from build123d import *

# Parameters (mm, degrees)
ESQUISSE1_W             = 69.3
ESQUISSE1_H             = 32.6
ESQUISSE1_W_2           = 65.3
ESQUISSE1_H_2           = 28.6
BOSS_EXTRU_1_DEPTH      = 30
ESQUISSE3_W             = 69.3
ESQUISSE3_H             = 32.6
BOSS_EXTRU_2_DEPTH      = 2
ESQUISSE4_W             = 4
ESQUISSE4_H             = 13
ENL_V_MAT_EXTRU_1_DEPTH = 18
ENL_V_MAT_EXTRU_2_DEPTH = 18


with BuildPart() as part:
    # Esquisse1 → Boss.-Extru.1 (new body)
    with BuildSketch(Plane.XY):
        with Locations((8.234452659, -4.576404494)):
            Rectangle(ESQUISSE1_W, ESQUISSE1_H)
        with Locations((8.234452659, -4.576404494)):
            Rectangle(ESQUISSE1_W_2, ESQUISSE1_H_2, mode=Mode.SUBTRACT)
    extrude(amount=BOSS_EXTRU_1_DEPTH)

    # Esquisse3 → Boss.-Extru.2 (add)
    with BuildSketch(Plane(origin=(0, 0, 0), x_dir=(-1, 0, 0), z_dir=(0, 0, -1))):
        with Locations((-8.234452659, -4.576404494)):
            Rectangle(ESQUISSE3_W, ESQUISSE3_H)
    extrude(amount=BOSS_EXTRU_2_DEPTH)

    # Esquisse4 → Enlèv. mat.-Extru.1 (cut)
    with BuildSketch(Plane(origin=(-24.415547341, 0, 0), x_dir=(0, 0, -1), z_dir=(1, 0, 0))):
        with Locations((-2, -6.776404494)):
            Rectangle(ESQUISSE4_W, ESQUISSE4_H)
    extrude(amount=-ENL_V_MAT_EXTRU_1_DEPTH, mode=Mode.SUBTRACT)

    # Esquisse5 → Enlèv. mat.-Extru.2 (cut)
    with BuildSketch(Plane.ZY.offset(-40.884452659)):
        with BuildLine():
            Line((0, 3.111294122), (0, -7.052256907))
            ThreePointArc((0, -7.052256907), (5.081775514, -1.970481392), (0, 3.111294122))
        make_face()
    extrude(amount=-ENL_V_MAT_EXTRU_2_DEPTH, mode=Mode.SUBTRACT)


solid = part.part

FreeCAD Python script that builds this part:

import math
import FreeCAD as App
import Part
import Sketcher

V = App.Vector

doc = App.newDocument("Part")
params = doc.addObject("Spreadsheet::Sheet", "Params")
for row, (alias, value) in enumerate([
    ("sketch1_width", "69.3 mm"),
    ("sketch1_width2", "65.3 mm"),
    ("sketch1_height", "32.6 mm"),
    ("sketch1_height2", "28.6 mm"),
    ("pad1_length", "30 mm"),
    ("sketch2_width", "69.3 mm"),
    ("sketch2_height", "32.6 mm"),
    ("pad2_length", "2 mm"),
    ("sketch3_width", "13 mm"),
    ("sketch3_height", "4 mm"),
    ("pocket1_length", "18 mm"),
    ("pocket2_length", "18 mm"),
], start=1):
    params.set(f"A{row}", alias)
    params.set(f"B{row}", "=" + value)
    params.setAlias(f"B{row}", alias)

body = doc.addObject("PartDesign::Body", "Body")

sketch1 = body.newObject("Sketcher::SketchObject", "Sketch")
sketch1.AttachmentSupport = (doc.getObject("XY_Plane"), [""])
sketch1.MapMode = "FlatFace"
sketch1.addGeometry([
    Part.LineSegment(V(-26.415547, 11.723596, 0), V(-26.415547, -20.876404, 0)),
    Part.LineSegment(V(-26.415547, -20.876404, 0), V(42.884453, -20.876404, 0)),
    Part.LineSegment(V(42.884453, -20.876404, 0), V(42.884453, 11.723596, 0)),
    Part.LineSegment(V(42.884453, 11.723596, 0), V(-26.415547, 11.723596, 0)),
    Part.LineSegment(V(40.884453, -18.876404, 0), V(-24.415547, -18.876404, 0)),
    Part.LineSegment(V(-24.415547, -18.876404, 0), V(-24.415547, 9.723596, 0)),
    Part.LineSegment(V(-24.415547, 9.723596, 0), V(40.884453, 9.723596, 0)),
    Part.LineSegment(V(40.884453, 9.723596, 0), V(40.884453, -18.876404, 0)),
], False)
sketch1.addConstraint([
    Sketcher.Constraint("Coincident", 0, 2, 1, 1),
    Sketcher.Constraint("Coincident", 1, 2, 2, 1),
    Sketcher.Constraint("Coincident", 2, 2, 3, 1),
    Sketcher.Constraint("Coincident", 3, 2, 0, 1),
    Sketcher.Constraint("Coincident", 4, 2, 5, 1),
    Sketcher.Constraint("Coincident", 5, 2, 6, 1),
    Sketcher.Constraint("Coincident", 6, 2, 7, 1),
    Sketcher.Constraint("Coincident", 7, 2, 4, 1),
    Sketcher.Constraint("Vertical", 0),
    Sketcher.Constraint("Horizontal", 1),
    Sketcher.Constraint("Vertical", 2),
    Sketcher.Constraint("Horizontal", 3),
    Sketcher.Constraint("Horizontal", 4),
    Sketcher.Constraint("Vertical", 5),
    Sketcher.Constraint("Horizontal", 6),
    Sketcher.Constraint("Vertical", 7),
    Sketcher.Constraint("DistanceX", 1, 1, 1, 2, 69.3),
    Sketcher.Constraint("DistanceX", 4, 2, 4, 1, 65.3),
    Sketcher.Constraint("DistanceY", 0, 2, 0, 1, 32.6),
    Sketcher.Constraint("DistanceY", 5, 1, 5, 2, 28.6),
    Sketcher.Constraint("DistanceX", 0, 2, 4, 2, 2.0),
    Sketcher.Constraint("DistanceY", 0, 2, 4, 2, 2.0),
    Sketcher.Constraint("DistanceX", 0, 2, -1, 1, 26.415547),
    Sketcher.Constraint("DistanceY", 0, 2, -1, 1, 20.876404),
])
sketch1.setExpression("Constraints[16]", "Params.sketch1_width")
sketch1.setExpression("Constraints[17]", "Params.sketch1_width2")
sketch1.setExpression("Constraints[18]", "Params.sketch1_height")
sketch1.setExpression("Constraints[19]", "Params.sketch1_height2")
pad1 = body.newObject("PartDesign::Pad", "Pad")
pad1.Profile = sketch1
pad1.setExpression("Length", "Params.pad1_length")

sketch2 = body.newObject("Sketcher::SketchObject", "Sketch001")
sketch2.AttachmentSupport = (doc.getObject("XY_Plane"), [""])
sketch2.MapMode = "FlatFace"
sketch2.addGeometry([
    Part.LineSegment(V(42.884453, 11.723596, 0), V(42.884453, -20.876404, 0)),
    Part.LineSegment(V(42.884453, -20.876404, 0), V(-26.415547, -20.876404, 0)),
    Part.LineSegment(V(-26.415547, -20.876404, 0), V(-26.415547, 11.723596, 0)),
    Part.LineSegment(V(-26.415547, 11.723596, 0), V(42.884453, 11.723596, 0)),
], False)
sketch2.addConstraint([
    Sketcher.Constraint("Coincident", 0, 2, 1, 1),
    Sketcher.Constraint("Coincident", 1, 2, 2, 1),
    Sketcher.Constraint("Coincident", 2, 2, 3, 1),
    Sketcher.Constraint("Coincident", 3, 2, 0, 1),
    Sketcher.Constraint("Vertical", 0),
    Sketcher.Constraint("Horizontal", 1),
    Sketcher.Constraint("Vertical", 2),
    Sketcher.Constraint("Horizontal", 3),
    Sketcher.Constraint("DistanceX", 1, 2, 1, 1, 69.3),
    Sketcher.Constraint("DistanceY", 0, 2, 0, 1, 32.6),
    Sketcher.Constraint("DistanceX", -1, 1, 0, 2, 42.884453),
    Sketcher.Constraint("DistanceY", 0, 2, -1, 1, 20.876404),
])
sketch2.setExpression("Constraints[8]", "Params.sketch2_width")
sketch2.setExpression("Constraints[9]", "Params.sketch2_height")
pad2 = body.newObject("PartDesign::Pad", "Pad001")
pad2.Profile = sketch2
pad2.setExpression("Length", "Params.pad2_length")
pad2.Reversed = True

sketch3 = body.newObject("Sketcher::SketchObject", "Sketch002")
sketch3.AttachmentSupport = (doc.getObject("YZ_Plane"), [""])
sketch3.MapMode = "FlatFace"
sketch3.AttachmentOffset = App.Placement(V(0, 0, -24.415547), App.Rotation())
sketch3.addGeometry([
    Part.LineSegment(V(-0.276404, 4, 0), V(-13.276404, 4, 0)),
    Part.LineSegment(V(-13.276404, 4, 0), V(-13.276404, 0, 0)),
    Part.LineSegment(V(-13.276404, 0, 0), V(-0.276404, 0, 0)),
    Part.LineSegment(V(-0.276404, 0, 0), V(-0.276404, 4, 0)),
], False)
sketch3.addConstraint([
    Sketcher.Constraint("Coincident", 0, 2, 1, 1),
    Sketcher.Constraint("Coincident", 1, 2, 2, 1),
    Sketcher.Constraint("Coincident", 2, 2, 3, 1),
    Sketcher.Constraint("Coincident", 3, 2, 0, 1),
    Sketcher.Constraint("Horizontal", 0),
    Sketcher.Constraint("Vertical", 1),
    Sketcher.Constraint("Horizontal", 2),
    Sketcher.Constraint("Vertical", 3),
    Sketcher.Constraint("PointOnObject", 1, 2, -1),
    Sketcher.Constraint("DistanceX", 0, 2, 0, 1, 13.0),
    Sketcher.Constraint("DistanceY", 1, 2, 1, 1, 4.0),
    Sketcher.Constraint("DistanceX", 0, 2, -1, 1, 13.276404),
])
sketch3.setExpression("Constraints[9]", "Params.sketch3_width")
sketch3.setExpression("Constraints[10]", "Params.sketch3_height")
pocket1 = body.newObject("PartDesign::Pocket", "Pocket")
pocket1.Profile = sketch3
pocket1.setExpression("Length", "Params.pocket1_length")

sketch4 = body.newObject("Sketcher::SketchObject", "Sketch003")
sketch4.AttachmentSupport = (doc.getObject("YZ_Plane"), [""])
sketch4.MapMode = "FlatFace"
sketch4.AttachmentOffset = App.Placement(V(0, 0, 40.884453), App.Rotation())
sketch4.addGeometry([
    Part.LineSegment(V(3.111294, 0, 0), V(-7.052257, 0, 0)),
    Part.ArcOfCircle(Part.Circle(V(-1.970481, 0, 0), V(0, 0, 1), 5.081776), math.radians(0), math.radians(180)),
], False)
sketch4.addConstraint([
    Sketcher.Constraint("Coincident", 0, 1, 1, 1),
    Sketcher.Constraint("Coincident", 1, 2, 0, 2),
    Sketcher.Constraint("Horizontal", 0),
    Sketcher.Constraint("PointOnObject", 1, 3, -1),
    Sketcher.Constraint("PointOnObject", 0, 1, -1),
    Sketcher.Constraint("Radius", 1, 5.081776),
    Sketcher.Constraint("DistanceX", 1, 3, -1, 1, 1.970481),
])
pocket2 = body.newObject("PartDesign::Pocket", "Pocket001")
pocket2.Profile = sketch4
pocket2.setExpression("Length", "Params.pocket2_length")
pocket2.Reversed = True

doc.recompute()
